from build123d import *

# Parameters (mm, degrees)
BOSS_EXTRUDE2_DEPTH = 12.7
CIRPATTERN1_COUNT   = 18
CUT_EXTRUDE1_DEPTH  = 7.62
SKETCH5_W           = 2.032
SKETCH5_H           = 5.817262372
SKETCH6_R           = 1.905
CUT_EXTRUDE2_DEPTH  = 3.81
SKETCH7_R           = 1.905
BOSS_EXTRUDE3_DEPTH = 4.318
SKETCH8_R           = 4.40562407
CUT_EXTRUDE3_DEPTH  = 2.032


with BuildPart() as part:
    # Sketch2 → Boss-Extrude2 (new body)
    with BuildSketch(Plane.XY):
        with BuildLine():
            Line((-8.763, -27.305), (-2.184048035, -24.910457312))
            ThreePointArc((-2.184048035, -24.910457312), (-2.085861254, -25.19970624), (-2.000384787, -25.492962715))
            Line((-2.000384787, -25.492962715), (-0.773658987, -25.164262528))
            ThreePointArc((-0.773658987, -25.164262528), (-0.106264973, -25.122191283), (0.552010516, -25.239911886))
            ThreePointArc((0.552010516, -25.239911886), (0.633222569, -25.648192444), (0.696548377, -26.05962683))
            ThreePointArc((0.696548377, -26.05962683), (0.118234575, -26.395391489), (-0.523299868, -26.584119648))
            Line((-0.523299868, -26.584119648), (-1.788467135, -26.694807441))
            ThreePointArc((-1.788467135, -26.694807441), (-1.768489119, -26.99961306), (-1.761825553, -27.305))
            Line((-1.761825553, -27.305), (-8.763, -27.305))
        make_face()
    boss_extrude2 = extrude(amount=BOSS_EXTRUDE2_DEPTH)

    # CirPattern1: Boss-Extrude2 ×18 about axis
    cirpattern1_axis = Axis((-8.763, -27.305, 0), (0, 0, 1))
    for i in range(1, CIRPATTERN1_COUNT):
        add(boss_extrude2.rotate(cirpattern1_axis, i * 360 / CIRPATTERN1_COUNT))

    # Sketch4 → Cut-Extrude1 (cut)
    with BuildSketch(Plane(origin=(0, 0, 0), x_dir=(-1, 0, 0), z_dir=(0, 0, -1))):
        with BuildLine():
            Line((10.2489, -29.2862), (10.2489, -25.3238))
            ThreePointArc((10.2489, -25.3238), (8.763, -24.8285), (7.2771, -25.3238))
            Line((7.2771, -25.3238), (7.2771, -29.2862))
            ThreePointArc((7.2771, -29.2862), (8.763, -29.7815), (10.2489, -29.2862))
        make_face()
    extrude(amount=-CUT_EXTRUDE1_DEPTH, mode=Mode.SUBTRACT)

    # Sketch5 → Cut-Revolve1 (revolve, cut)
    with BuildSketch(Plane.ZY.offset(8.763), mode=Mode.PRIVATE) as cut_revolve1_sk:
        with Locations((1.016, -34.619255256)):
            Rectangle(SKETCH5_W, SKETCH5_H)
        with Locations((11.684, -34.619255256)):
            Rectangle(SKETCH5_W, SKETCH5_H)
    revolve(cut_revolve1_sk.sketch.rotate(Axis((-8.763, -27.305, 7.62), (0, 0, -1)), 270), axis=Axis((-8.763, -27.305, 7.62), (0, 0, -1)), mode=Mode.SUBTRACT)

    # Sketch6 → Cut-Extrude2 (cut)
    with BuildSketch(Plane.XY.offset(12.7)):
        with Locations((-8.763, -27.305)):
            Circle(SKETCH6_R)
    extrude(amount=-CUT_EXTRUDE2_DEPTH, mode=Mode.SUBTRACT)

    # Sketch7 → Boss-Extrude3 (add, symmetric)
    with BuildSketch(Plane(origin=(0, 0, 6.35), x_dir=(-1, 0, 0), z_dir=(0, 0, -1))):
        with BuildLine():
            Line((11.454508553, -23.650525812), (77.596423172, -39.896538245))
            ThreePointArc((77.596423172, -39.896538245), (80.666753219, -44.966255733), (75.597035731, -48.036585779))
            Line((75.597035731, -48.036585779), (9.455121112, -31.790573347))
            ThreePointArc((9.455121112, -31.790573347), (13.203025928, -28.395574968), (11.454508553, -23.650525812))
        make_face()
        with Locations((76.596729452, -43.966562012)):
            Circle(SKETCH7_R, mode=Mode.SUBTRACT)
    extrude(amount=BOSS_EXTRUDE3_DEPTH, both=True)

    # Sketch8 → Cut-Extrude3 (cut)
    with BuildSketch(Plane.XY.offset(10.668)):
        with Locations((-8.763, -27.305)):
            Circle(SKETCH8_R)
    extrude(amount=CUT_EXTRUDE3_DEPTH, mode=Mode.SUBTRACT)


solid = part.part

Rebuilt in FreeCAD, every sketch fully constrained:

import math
import FreeCAD as App
import Part
import Sketcher
from FreeCAD import Vector
Q = App.Units.Quantity


def add_polygon(sketch, points):
    """Adds a closed chain of lines whose ends are joined by coincident constraints."""
    first, n = sketch.GeometryCount, len(points)
    for a, b in zip(points, points[1:] + points[:1]):
        sketch.addGeometry(Part.LineSegment(App.Vector(*a, 0), App.Vector(*b, 0)), False)
    for i in range(n):
        sketch.addConstraint(Sketcher.Constraint("Coincident", first + i, 2, first + (i + 1) % n, 1))

doc = App.newDocument("Part")
body = doc.addObject("PartDesign::Body", "Body")

# Sketch on XY plane
sketch1 = body.newObject("Sketcher::SketchObject", "Sketch")
sketch1.AttachmentSupport = (doc.getObject("XY_Plane"), [""])
sketch1.MapMode = "FlatFace"
sketch1.addGeometry([
    Part.LineSegment(Vector(-2.2, -24.9, 0), Vector(-8.8, -27.3, 0)),  # 0
    Part.LineSegment(Vector(-8.8, -27.3, 0), Vector(-1.8, -27.3, 0)),  # 1
    Part.ArcOfCircle(Part.Circle(Vector(-8.8, -27.3, 0), Vector(0, 0, 1), 7), math.radians(0), math.radians(5)),  # 2
    Part.LineSegment(Vector(-1.8, -26.7, 0), Vector(-0.5, -26.6, 0)),  # 3
    Part.ArcOfCircle(Part.Circle(Vector(-1, -23.8, 0), Vector(0, 0, 1), 2.8), math.radians(-80), math.radians(-53)),  # 4
    Part.ArcOfCircle(Part.Circle(Vector(-8.8, -27.3, 0), Vector(0, 0, 1), 9.5), math.radians(7.5), math.radians(12.5)),  # 5
    Part.ArcOfCircle(Part.Circle(Vector(-0.3, -27.9, 0), Vector(0, 0, 1), 2.8), math.radians(73), math.radians(100)),  # 6
    Part.LineSegment(Vector(-0.8, -25.2, 0), Vector(-2, -25.5, 0)),  # 7
    Part.ArcOfCircle(Part.Circle(Vector(-8.8, -27.3, 0), Vector(0, 0, 1), 7), math.radians(15), math.radians(20)),  # 8
], False)
sketch1.addConstraint([
    Sketcher.Constraint("Coincident", 0, 2, 1, 1),
    Sketcher.Constraint("Coincident", 1, 2, 2, 1),
    Sketcher.Constraint("Coincident", 2, 2, 3, 1),
    Sketcher.Constraint("Coincident", 3, 2, 4, 1),
    Sketcher.Constraint("Coincident", 4, 2, 5, 1),
    Sketcher.Constraint("Coincident", 5, 2, 6, 1),
    Sketcher.Constraint("Coincident", 6, 2, 7, 1),
    Sketcher.Constraint("Coincident", 7, 2, 8, 1),
    Sketcher.Constraint("Coincident", 8, 2, 0, 1),
    Sketcher.Constraint("Horizontal", 1),
    Sketcher.Constraint("Coincident", 5, 3, 2, 3),
    Sketcher.Constraint("Coincident", 8, 3, 2, 3),
    Sketcher.Constraint("Coincident", 0, 2, 2, 3),
    Sketcher.Constraint("Equal", 4, 6),
    Sketcher.Constraint("Equal", 2, 8),
    Sketcher.Constraint("Equal", 3, 7),
    Sketcher.Constraint("Radius", 4, Q("0.11 in")),
    Sketcher.Constraint("Angle", 0, Q("-160 deg")),
    Sketcher.Constraint("Angle", 3, Q("5 deg")),
    Sketcher.Constraint("Angle", 7, Q("-165 deg")),
    Sketcher.Constraint("Distance", 3, Q("0.05 in")),
    Sketcher.Constraint("DistanceX", 2, 3, -1, 1, Q("0.345 in")),
    Sketcher.Constraint("DistanceY", 2, 3, -1, 1, Q("1.075 in")),
    Sketcher.Constraint("Radius", 2, Q("7.001174 mm")),
    Sketcher.Constraint("Radius", 5, Q("9.541174 mm")),
    Sketcher.Constraint("DistanceY", 3, 2, 6, 2, Q("0.0558999 in")),
    Sketcher.Constraint("DistanceX", 4, 3, -1, 1, Q("0.985399 mm")),
    Sketcher.Constraint("DistanceX", 3, 2, -1, 1, Q("0.5233 mm")),
    Sketcher.Constraint("DistanceX", -1, 1, 5, 2, Q("0.552011 mm")),
])
pad1 = body.newObject("PartDesign::Pad", "Pad")
pad1.Profile = sketch1
pad1.Length = Q("0.5 in")
doc.recompute()

datumline = body.newObject("PartDesign::Line", "DatumLine")
datumline.Placement = App.Placement(Vector(-8.763, -27.305, 0), App.Rotation(Vector(0, 0, 1), Vector(0, 0, 1)))
polarpattern = body.newObject("PartDesign::PolarPattern", "PolarPattern")
polarpattern.Originals = [pad1]
polarpattern.Axis = (datumline, [""])
polarpattern.Angle = 360
polarpattern.Occurrences = 18
body.Tip = polarpattern

# Sketch on XY plane
sketch2 = body.newObject("Sketcher::SketchObject", "Sketch001")
sketch2.AttachmentSupport = (doc.getObject("XY_Plane"), [""])
sketch2.MapMode = "FlatFace"
sketch2.addGeometry([
    Part.LineSegment(Vector(-10.2, -29.3, 0), Vector(-10.2, -25.3, 0)),
    Part.ArcOfCircle(Part.Circle(Vector(-8.8, -27.3, 0), Vector(0, 0, 1), 2.5), math.radians(53), math.radians(127)),
    Part.LineSegment(Vector(-7.3, -25.3, 0), Vector(-7.3, -29.3, 0)),
    Part.ArcOfCircle(Part.Circle(Vector(-8.8, -27.3, 0), Vector(0, 0, 1), 2.5), math.radians(-127), math.radians(-53)),
], False)
sketch2.addConstraint([
    Sketcher.Constraint("Coincident", 0, 2, 1, 2),
    Sketcher.Constraint("Coincident", 1, 1, 2, 1),
    Sketcher.Constraint("Coincident", 2, 2, 3, 2),
    Sketcher.Constraint("Coincident", 3, 1, 0, 1),
    Sketcher.Constraint("Vertical", 0),
    Sketcher.Constraint("Vertical", 2),
    Sketcher.Constraint("Coincident", 3, 3, 1, 3),
    Sketcher.Constraint("Equal", 1, 3),
    Sketcher.Constraint("Horizontal", 0, 2, 1, 1),
    Sketcher.Constraint("Radius", 1, Q("0.0975 in")),
    Sketcher.Constraint("DistanceY", 0, 1, 0, 2, Q("0.156 in")),
    Sketcher.Constraint("DistanceX", 1, 3, -1, 1, Q("0.345 in")),
    Sketcher.Constraint("DistanceY", 1, 3, -1, 1, Q("1.075 in")),
])
pocket1 = body.newObject("PartDesign::Pocket", "Pocket")
pocket1.Profile = sketch2
pocket1.Length = Q("0.3 in")
pocket1.Reversed = True

# Sketch on YZ plane
sketch3 = body.newObject("Sketcher::SketchObject", "Sketch002")
sketch3.AttachmentSupport = (doc.getObject("YZ_Plane"), [""])
sketch3.MapMode = "FlatFace"
sketch3.AttachmentOffset = App.Placement(Vector(0, 0, -0.345 * 25.4), App.Rotation())
add_polygon(sketch3, [(-31.7, 0), (-37.5, 0), (-37.5, 2), (-31.7, 2)])  # lines 0-3
add_polygon(sketch3, [(-31.7, 10.7), (-37.5, 10.7), (-37.5, 12.7), (-31.7, 12.7)])  # lines 4-7
sketch3.addGeometry(Part.LineSegment(Vector(-27.3, 12.7, 0), Vector(-27.3, 0, 0)), True)  # axis
sketch3.addConstraint([
    Sketcher.Constraint("Horizontal", 0),
    Sketcher.Constraint("Vertical", 1),
    Sketcher.Constraint("Horizontal", 2),
    Sketcher.Constraint("Vertical", 3),
    Sketcher.Constraint("Horizontal", 4),
    Sketcher.Constraint("Vertical", 5),
    Sketcher.Constraint("Horizontal", 6),
    Sketcher.Constraint("Vertical", 7),
    Sketcher.Constraint("Vertical", 8),
    Sketcher.Constraint("PointOnObject", 0, 2, -1),
    Sketcher.Constraint("PointOnObject", 8, 2, -1),
    Sketcher.Constraint("Horizontal", 6, 2, 8, 1),
    Sketcher.Constraint("Vertical", 1, 2, 4, 2),
    Sketcher.Constraint("Vertical", 3, 2, 6, 2),
    Sketcher.Constraint("Equal", 3, 5),
    Sketcher.Constraint("DistanceY", 8, 2, 8, 1, Q("0.5 in")),
    Sketcher.Constraint("DistanceY", 1, 1, 1, 2, Q("0.08 in")),
    Sketcher.Constraint("DistanceX", 8, 1, -1, 1, Q("1.075 in")),
    Sketcher.Constraint("DistanceX", 0, 2, 0, 1, Q("5.817262 mm")),
    Sketcher.Constraint("DistanceX", 0, 2, -1, 1, Q("37.527886 mm")),
])
groove = body.newObject("PartDesign::Groove", "Groove")
groove.Profile = sketch3
groove.ReferenceAxis = (sketch3, ["Axis0"])
groove.Angle = 360

# Sketch on XY plane
sketch4 = body.newObject("Sketcher::SketchObject", "Sketch003")
sketch4.AttachmentSupport = (doc.getObject("XY_Plane"), [""])
sketch4.MapMode = "FlatFace"
sketch4.AttachmentOffset = App.Placement(Vector(0, 0, 0.5 * 25.4), App.Rotation())
sketch4.addGeometry(Part.Circle(Vector(-8.8, -27.3, 0), Vector(0, 0, 1), 1.9), False)
sketch4.addConstraint([
    Sketcher.Constraint("Diameter", 0, Q("0.15 in")),
    Sketcher.Constraint("DistanceX", 0, 3, -1, 1, Q("0.345 in")),
    Sketcher.Constraint("DistanceY", 0, 3, -1, 1, Q("1.075 in")),
])
pocket2 = body.newObject("PartDesign::Pocket", "Pocket001")
pocket2.Profile = sketch4
pocket2.Length = Q("0.15 in")

# Sketch on XY plane
sketch5 = body.newObject("Sketcher::SketchObject", "Sketch004")
sketch5.AttachmentSupport = (doc.getObject("XY_Plane"), [""])
sketch5.MapMode = "FlatFace"
sketch5.AttachmentOffset = App.Placement(Vector(0, 0, 0.25 * 25.4), App.Rotation())
sketch5.addGeometry([
    Part.LineSegment(Vector(-77.6, -39.9, 0), Vector(-11.5, -23.7, 0)),  # 0
    Part.ArcOfCircle(Part.Circle(Vector(-8.8, -27.3, 0), Vector(0, 0, 1), 4.5), math.radians(126), math.radians(262)),  # 1
    Part.LineSegment(Vector(-9.5, -31.8, 0), Vector(-75.6, -48, 0)),  # 2
    Part.ArcOfCircle(Part.Circle(Vector(-76.6, -44, 0), Vector(0, 0, 1), 4.2), math.radians(104), math.radians(284)),  # 3
    Part.Circle(Vector(-76.6, -44, 0), Vector(0, 0, 1), 1.9),  # 4
], False)
sketch5.addConstraint([
    Sketcher.Constraint("Coincident", 0, 2, 1, 1),
    Sketcher.Constraint("Coincident", 1, 2, 2, 1),
    Sketcher.Constraint("Tangent", 2, 2, 3, 2),
    Sketcher.Constraint("Tangent", 3, 1, 0, 1),
    Sketcher.Constraint("Coincident", 4, 3, 3, 3),
    Sketcher.Constraint("Parallel", 0, 2),
    Sketcher.Constraint("Equal", 0, 2),
    Sketcher.Constraint("Diameter", 4, Q("0.15 in")),
    Sketcher.Constraint("Radius", 3, Q("0.165 in")),
    Sketcher.Constraint("Angle", 0, Q("13.8 deg")),
    Sketcher.Constraint("Radius", 1, Q("4.518326 mm")),
    Sketcher.Constraint("DistanceY", 2, 2, 1, 3, Q("0.8157001 in")),
    Sketcher.Constraint("DistanceX", 3, 3, -1, 1, Q("76.596729 mm")),
    Sketcher.Constraint("DistanceY", 3, 1, -1, 1, Q("39.896538 mm")),
])
pad2 = body.newObject("PartDesign::Pad", "Pad001")
pad2.Profile = sketch5
pad2.Length = Q("0.34 in")
pad2.Midplane = True

# Sketch on XY plane
sketch6 = body.newObject("Sketcher::SketchObject", "Sketch005")
sketch6.AttachmentSupport = (doc.getObject("XY_Plane"), [""])
sketch6.MapMode = "FlatFace"
sketch6.AttachmentOffset = App.Placement(Vector(0, 0, 0.42 * 25.4), App.Rotation())
sketch6.addGeometry(Part.Circle(Vector(-8.8, -27.3, 0), Vector(0, 0, 1), 4.4), False)
sketch6.addConstraint([
    Sketcher.Constraint("Diameter", 0, Q("8.811248 mm")),
    Sketcher.Constraint("DistanceX", 0, 3, -1, 1, Q("0.345 in")),
    Sketcher.Constraint("DistanceY", 0, 3, -1, 1, Q("1.075 in")),
])
pocket3 = body.newObject("PartDesign::Pocket", "Pocket002")
pocket3.Profile = sketch6
pocket3.Length = Q("0.08 in")
pocket3.Reversed = True

doc.recompute()
